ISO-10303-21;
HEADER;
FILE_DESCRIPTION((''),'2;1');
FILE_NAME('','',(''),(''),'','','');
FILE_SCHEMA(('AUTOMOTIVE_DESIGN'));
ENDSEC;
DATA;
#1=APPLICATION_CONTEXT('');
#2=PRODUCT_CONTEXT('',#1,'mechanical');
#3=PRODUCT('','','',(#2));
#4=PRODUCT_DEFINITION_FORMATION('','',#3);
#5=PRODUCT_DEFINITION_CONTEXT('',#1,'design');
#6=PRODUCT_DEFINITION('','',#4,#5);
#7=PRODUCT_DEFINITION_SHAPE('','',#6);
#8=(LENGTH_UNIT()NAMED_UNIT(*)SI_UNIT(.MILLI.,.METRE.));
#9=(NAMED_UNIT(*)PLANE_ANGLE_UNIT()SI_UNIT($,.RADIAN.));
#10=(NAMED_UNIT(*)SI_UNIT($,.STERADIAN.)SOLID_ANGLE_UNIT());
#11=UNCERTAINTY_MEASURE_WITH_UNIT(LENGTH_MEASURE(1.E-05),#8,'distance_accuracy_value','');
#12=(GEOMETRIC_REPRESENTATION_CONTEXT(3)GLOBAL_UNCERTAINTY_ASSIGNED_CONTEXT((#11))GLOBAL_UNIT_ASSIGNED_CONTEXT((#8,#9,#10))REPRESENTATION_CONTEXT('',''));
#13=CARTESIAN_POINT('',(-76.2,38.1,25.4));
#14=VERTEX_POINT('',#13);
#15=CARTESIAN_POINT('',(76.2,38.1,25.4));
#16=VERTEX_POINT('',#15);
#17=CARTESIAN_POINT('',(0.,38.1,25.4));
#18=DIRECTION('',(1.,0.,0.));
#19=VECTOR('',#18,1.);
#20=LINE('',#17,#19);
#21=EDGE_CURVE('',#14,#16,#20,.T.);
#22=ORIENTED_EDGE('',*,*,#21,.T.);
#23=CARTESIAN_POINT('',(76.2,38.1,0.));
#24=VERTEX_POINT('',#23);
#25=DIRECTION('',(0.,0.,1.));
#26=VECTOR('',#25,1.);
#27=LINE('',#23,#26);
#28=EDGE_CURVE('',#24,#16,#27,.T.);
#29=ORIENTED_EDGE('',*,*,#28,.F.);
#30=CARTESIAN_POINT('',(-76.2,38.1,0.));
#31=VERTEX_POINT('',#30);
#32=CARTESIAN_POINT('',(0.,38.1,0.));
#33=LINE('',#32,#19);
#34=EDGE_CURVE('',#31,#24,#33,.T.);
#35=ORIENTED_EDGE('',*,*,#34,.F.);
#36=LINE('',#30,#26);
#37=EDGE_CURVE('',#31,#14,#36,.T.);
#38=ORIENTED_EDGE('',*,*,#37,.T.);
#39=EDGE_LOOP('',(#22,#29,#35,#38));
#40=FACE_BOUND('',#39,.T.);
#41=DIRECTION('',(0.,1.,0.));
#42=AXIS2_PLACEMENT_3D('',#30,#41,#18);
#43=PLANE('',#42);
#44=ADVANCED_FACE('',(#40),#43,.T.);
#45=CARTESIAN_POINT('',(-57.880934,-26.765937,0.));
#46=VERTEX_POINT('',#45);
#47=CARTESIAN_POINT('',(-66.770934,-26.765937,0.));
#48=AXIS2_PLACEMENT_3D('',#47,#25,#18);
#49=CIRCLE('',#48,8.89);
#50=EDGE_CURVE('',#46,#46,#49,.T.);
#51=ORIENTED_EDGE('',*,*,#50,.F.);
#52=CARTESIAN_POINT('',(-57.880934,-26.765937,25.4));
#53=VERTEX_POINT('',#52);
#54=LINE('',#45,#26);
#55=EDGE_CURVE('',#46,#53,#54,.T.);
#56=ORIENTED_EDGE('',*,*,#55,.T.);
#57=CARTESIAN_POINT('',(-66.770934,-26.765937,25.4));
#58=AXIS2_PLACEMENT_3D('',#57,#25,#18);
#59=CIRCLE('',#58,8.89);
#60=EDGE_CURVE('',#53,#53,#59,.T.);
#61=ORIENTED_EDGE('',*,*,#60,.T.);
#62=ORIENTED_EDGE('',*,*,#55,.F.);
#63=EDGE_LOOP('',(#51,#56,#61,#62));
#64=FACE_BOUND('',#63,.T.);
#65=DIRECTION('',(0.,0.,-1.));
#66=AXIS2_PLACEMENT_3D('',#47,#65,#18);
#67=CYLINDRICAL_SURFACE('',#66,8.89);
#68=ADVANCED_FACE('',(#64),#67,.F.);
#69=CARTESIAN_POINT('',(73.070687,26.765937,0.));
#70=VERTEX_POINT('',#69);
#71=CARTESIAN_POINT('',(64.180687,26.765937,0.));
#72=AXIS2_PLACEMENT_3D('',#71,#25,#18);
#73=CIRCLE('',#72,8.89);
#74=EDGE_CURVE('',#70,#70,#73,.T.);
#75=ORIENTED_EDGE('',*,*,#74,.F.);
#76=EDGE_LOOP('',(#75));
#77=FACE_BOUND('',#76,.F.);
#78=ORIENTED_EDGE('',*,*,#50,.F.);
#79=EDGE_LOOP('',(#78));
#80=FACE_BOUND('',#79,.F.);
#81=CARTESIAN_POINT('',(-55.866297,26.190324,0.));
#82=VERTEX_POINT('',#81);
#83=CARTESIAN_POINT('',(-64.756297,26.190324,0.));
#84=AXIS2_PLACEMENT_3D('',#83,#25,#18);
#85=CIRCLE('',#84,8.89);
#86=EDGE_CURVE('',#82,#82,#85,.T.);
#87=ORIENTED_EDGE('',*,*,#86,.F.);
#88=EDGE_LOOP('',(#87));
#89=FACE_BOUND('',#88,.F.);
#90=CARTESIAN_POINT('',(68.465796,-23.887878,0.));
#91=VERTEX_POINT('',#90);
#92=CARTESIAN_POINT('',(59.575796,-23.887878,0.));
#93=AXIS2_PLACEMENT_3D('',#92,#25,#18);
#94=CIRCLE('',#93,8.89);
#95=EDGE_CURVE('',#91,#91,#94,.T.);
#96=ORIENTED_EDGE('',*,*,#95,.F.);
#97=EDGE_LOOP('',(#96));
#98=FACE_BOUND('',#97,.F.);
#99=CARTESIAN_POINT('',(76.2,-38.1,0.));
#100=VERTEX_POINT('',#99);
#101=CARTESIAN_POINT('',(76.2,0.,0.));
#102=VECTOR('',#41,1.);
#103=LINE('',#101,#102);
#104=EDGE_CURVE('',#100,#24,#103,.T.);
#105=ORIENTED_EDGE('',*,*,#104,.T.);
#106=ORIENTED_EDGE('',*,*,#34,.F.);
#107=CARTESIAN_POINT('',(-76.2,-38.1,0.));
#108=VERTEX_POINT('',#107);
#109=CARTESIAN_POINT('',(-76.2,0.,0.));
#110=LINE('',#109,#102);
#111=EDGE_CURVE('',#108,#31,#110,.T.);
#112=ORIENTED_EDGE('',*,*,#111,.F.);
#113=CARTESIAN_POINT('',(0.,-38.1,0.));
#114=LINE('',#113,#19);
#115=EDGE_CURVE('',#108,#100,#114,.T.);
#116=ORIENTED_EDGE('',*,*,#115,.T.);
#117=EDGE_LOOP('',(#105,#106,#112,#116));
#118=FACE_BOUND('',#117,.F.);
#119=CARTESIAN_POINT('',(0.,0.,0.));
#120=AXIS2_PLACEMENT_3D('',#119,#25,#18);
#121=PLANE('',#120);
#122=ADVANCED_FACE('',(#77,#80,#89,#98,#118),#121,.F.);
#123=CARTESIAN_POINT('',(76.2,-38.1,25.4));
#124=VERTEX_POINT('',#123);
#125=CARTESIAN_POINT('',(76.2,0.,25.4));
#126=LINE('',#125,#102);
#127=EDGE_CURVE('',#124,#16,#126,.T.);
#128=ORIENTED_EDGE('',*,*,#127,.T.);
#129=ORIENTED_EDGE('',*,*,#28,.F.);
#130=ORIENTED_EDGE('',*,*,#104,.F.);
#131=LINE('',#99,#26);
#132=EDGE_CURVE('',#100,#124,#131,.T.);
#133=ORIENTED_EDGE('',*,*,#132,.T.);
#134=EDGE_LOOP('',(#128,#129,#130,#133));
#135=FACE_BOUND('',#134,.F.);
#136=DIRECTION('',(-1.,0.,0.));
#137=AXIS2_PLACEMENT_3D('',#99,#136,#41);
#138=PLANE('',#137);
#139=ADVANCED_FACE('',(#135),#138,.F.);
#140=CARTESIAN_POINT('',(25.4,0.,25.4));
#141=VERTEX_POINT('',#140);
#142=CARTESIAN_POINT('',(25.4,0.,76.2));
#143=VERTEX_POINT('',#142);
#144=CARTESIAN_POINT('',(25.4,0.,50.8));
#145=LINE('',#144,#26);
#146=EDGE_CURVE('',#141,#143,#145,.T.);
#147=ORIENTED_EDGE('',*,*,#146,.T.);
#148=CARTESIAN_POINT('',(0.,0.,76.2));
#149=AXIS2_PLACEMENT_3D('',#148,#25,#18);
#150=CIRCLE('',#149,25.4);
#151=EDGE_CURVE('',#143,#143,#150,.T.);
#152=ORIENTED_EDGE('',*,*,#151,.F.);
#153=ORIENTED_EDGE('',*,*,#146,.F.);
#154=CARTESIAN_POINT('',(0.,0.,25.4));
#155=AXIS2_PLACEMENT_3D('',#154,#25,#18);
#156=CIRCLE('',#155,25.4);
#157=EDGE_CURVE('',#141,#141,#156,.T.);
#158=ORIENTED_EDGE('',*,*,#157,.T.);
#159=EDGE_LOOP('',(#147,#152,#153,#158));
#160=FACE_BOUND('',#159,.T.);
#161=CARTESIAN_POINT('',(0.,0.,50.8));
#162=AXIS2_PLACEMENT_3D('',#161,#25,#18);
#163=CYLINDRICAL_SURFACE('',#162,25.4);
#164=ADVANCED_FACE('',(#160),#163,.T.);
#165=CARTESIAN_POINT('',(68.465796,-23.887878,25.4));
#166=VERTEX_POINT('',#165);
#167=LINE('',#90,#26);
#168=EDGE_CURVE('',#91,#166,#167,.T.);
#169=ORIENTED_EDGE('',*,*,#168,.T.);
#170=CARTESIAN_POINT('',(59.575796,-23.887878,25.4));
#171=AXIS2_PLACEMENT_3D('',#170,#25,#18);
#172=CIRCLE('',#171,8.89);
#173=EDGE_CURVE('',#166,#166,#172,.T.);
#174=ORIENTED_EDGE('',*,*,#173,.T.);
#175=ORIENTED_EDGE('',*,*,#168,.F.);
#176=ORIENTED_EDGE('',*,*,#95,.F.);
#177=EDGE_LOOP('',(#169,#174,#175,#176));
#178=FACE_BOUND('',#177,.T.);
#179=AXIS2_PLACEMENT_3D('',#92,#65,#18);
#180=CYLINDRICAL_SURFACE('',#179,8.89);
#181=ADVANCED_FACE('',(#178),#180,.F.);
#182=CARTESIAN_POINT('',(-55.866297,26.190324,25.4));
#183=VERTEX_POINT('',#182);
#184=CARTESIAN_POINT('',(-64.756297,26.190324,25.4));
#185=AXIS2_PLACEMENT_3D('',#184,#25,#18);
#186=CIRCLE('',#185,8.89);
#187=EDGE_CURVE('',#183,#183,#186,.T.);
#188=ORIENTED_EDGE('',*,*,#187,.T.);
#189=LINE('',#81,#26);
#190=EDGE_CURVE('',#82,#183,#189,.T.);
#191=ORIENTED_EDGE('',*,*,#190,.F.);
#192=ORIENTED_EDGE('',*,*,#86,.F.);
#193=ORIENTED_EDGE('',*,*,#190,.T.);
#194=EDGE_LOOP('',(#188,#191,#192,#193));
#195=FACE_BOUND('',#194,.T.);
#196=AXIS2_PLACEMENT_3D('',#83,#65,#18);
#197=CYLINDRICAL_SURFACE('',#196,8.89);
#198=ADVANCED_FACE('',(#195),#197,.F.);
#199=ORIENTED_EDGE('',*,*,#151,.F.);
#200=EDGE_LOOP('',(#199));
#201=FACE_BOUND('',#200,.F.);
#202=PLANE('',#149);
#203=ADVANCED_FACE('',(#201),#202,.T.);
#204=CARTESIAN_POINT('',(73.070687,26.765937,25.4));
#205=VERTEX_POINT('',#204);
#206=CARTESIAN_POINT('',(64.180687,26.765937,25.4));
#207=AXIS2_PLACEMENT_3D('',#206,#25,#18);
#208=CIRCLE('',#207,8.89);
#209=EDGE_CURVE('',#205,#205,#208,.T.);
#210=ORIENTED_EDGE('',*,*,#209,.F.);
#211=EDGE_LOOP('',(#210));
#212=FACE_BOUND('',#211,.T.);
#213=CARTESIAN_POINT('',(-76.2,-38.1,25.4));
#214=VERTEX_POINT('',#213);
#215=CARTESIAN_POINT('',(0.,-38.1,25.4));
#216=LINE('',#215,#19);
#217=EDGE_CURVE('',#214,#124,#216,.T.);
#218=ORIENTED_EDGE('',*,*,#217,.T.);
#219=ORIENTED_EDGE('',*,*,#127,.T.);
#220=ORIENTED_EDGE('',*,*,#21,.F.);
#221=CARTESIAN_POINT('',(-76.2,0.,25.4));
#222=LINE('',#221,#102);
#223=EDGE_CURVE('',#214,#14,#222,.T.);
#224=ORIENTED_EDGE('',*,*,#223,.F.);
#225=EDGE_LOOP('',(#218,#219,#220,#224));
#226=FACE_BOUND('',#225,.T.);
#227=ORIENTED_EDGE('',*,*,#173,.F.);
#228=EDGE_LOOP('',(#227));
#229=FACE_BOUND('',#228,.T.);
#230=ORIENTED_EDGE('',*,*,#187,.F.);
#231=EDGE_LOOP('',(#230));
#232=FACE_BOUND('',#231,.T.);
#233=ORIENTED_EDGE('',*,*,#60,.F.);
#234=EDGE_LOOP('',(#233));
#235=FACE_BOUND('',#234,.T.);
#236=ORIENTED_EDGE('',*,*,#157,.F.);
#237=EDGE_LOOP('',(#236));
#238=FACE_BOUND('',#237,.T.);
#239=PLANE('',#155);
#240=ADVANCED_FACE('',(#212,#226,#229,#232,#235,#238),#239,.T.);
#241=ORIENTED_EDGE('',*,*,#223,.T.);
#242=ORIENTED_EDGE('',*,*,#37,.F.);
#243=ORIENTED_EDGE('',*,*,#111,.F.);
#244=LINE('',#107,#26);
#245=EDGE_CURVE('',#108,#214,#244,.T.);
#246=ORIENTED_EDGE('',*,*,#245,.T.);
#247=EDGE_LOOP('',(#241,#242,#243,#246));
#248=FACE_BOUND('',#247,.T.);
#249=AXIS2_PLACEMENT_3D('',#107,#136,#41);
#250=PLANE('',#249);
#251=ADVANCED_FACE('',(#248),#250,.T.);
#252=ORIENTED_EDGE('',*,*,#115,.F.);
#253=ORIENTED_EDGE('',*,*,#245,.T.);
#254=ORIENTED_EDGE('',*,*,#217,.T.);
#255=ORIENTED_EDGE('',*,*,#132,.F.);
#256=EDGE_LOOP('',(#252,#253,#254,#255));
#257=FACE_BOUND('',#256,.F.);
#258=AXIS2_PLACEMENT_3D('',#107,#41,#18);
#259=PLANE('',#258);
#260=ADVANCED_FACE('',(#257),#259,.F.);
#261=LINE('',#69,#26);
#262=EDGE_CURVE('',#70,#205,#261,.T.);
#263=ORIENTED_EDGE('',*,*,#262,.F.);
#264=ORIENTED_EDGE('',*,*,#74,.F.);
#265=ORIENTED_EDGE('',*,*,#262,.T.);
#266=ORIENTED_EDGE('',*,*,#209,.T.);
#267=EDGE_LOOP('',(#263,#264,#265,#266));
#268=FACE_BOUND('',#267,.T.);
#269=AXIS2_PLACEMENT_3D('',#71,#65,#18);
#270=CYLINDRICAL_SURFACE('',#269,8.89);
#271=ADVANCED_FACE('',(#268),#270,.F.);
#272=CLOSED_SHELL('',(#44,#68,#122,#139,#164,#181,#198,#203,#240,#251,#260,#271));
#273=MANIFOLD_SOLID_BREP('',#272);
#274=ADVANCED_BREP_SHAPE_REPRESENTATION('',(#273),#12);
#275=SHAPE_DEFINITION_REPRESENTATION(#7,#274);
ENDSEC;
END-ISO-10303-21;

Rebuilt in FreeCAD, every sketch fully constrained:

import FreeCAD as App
import Part
import Sketcher
Q = App.Units.Quantity

doc = App.newDocument("Part")
body = doc.addObject("PartDesign::Body", "Body")

# Sketch on XY plane
sketch1 = body.newObject("Sketcher::SketchObject", "Sketch")
sketch1.AttachmentSupport = (doc.getObject("XY_Plane"), [""])
sketch1.MapMode = "FlatFace"
sketch1.addGeometry(Part.LineSegment(App.Vector(-76, 38, 0), App.Vector(-76, -38, 0)), False)
sketch1.addGeometry(Part.LineSegment(App.Vector(-76, -38, 0), App.Vector(76, -38, 0)), False)
sketch1.addGeometry(Part.LineSegment(App.Vector(76, -38, 0), App.Vector(76, 38, 0)), False)
sketch1.addGeometry(Part.LineSegment(App.Vector(76, 38, 0), App.Vector(-76, 38, 0)), False)
sketch1.addGeometry(Part.Circle(App.Vector(-67, -27, 0), App.Vector(0, 0, 1), 9), False)
sketch1.addGeometry(Part.Circle(App.Vector(60, -24, 0), App.Vector(0, 0, 1), 9), False)
sketch1.addGeometry(Part.Circle(App.Vector(-65, 26, 0), App.Vector(0, 0, 1), 9), False)
sketch1.addGeometry(Part.Circle(App.Vector(64, 27, 0), App.Vector(0, 0, 1), 9), False)
sketch1.addConstraint(Sketcher.Constraint("Coincident", 0, 2, 1, 1))
sketch1.addConstraint(Sketcher.Constraint("Coincident", 1, 2, 2, 1))
sketch1.addConstraint(Sketcher.Constraint("Coincident", 2, 2, 3, 1))
sketch1.addConstraint(Sketcher.Constraint("Coincident", 3, 2, 0, 1))
sketch1.addConstraint(Sketcher.Constraint("Vertical", 0))
sketch1.addConstraint(Sketcher.Constraint("Horizontal", 1))
sketch1.addConstraint(Sketcher.Constraint("Vertical", 2))
sketch1.addConstraint(Sketcher.Constraint("Horizontal", 3))
sketch1.addConstraint(Sketcher.Constraint("Equal", 4, 5))
sketch1.addConstraint(Sketcher.Constraint("Equal", 5, 6))
sketch1.addConstraint(Sketcher.Constraint("Equal", 6, 7))
sketch1.addConstraint(Sketcher.Constraint("Symmetric", 0, 2, 2, 2, -1, 1))
sketch1.addConstraint(Sketcher.Constraint("Diameter", 4, Q("0.7 in")))
sketch1.addConstraint(Sketcher.Constraint("DistanceX", 1, 1, 1, 2, Q("6 in")))
sketch1.addConstraint(Sketcher.Constraint("DistanceY", 0, 2, 0, 1, Q("3 in")))
sketch1.addConstraint(Sketcher.Constraint("DistanceY", 5, 3, -1, 1, 23.887878))
sketch1.addConstraint(Sketcher.Constraint("DistanceX", 4, 3, 5, 3, 126.34673))
sketch1.addConstraint(Sketcher.Constraint("DistanceY", 4, 3, 5, 3, 2.878059))
sketch1.addConstraint(Sketcher.Constraint("DistanceY", 4, 3, 6, 3, 52.956261))
sketch1.addConstraint(Sketcher.Constraint("DistanceX", 5, 3, 7, 3, 4.604891))
sketch1.addConstraint(Sketcher.Constraint("DistanceX", 4, 3, -1, 1, 66.770934))
sketch1.addConstraint(Sketcher.Constraint("DistanceX", 6, 3, -1, 1, 64.756297))
sketch1.addConstraint(Sketcher.Constraint("DistanceY", -1, 1, 7, 3, 26.765937))
pad1 = body.newObject("PartDesign::Pad", "Pad")
pad1.Profile = sketch1
pad1.Length = Q("1 in")

# Sketch on XZ plane
sketch2 = body.newObject("Sketcher::SketchObject", "Sketch001")
sketch2.AttachmentSupport = (doc.getObject("XZ_Plane"), [""])
sketch2.MapMode = "FlatFace"
sketch2.addGeometry(Part.LineSegment(App.Vector(0, 76, 0), App.Vector(0, 25, 0)), False)
sketch2.addGeometry(Part.LineSegment(App.Vector(0, 25, 0), App.Vector(25, 25, 0)), False)
sketch2.addGeometry(Part.LineSegment(App.Vector(25, 25, 0), App.Vector(25, 76, 0)), False)
sketch2.addGeometry(Part.LineSegment(App.Vector(25, 76, 0), App.Vector(0, 76, 0)), False)
sketch2.addConstraint(Sketcher.Constraint("Coincident", 0, 2, 1, 1))
sketch2.addConstraint(Sketcher.Constraint("Coincident", 1, 2, 2, 1))
sketch2.addConstraint(Sketcher.Constraint("Coincident", 2, 2, 3, 1))
sketch2.addConstraint(Sketcher.Constraint("Coincident", 3, 2, 0, 1))
sketch2.addConstraint(Sketcher.Constraint("Vertical", 0))
sketch2.addConstraint(Sketcher.Constraint("Horizontal", 1))
sketch2.addConstraint(Sketcher.Constraint("Vertical", 2))
sketch2.addConstraint(Sketcher.Constraint("Horizontal", 3))
sketch2.addConstraint(Sketcher.Constraint("PointOnObject", 0, 2, -2))
sketch2.addConstraint(Sketcher.Constraint("DistanceX", 1, 1, 1, 2, Q("1 in")))
sketch2.addConstraint(Sketcher.Constraint("DistanceY", 0, 2, 0, 1, Q("2 in")))
sketch2.addConstraint(Sketcher.Constraint("DistanceY", -1, 1, 0, 2, Q("1 in")))
revolution = body.newObject("PartDesign::Revolution", "Revolution")
revolution.Profile = sketch2
revolution.ReferenceAxis = (sketch2, ["V_Axis"])
revolution.Angle = 360

doc.recompute()
